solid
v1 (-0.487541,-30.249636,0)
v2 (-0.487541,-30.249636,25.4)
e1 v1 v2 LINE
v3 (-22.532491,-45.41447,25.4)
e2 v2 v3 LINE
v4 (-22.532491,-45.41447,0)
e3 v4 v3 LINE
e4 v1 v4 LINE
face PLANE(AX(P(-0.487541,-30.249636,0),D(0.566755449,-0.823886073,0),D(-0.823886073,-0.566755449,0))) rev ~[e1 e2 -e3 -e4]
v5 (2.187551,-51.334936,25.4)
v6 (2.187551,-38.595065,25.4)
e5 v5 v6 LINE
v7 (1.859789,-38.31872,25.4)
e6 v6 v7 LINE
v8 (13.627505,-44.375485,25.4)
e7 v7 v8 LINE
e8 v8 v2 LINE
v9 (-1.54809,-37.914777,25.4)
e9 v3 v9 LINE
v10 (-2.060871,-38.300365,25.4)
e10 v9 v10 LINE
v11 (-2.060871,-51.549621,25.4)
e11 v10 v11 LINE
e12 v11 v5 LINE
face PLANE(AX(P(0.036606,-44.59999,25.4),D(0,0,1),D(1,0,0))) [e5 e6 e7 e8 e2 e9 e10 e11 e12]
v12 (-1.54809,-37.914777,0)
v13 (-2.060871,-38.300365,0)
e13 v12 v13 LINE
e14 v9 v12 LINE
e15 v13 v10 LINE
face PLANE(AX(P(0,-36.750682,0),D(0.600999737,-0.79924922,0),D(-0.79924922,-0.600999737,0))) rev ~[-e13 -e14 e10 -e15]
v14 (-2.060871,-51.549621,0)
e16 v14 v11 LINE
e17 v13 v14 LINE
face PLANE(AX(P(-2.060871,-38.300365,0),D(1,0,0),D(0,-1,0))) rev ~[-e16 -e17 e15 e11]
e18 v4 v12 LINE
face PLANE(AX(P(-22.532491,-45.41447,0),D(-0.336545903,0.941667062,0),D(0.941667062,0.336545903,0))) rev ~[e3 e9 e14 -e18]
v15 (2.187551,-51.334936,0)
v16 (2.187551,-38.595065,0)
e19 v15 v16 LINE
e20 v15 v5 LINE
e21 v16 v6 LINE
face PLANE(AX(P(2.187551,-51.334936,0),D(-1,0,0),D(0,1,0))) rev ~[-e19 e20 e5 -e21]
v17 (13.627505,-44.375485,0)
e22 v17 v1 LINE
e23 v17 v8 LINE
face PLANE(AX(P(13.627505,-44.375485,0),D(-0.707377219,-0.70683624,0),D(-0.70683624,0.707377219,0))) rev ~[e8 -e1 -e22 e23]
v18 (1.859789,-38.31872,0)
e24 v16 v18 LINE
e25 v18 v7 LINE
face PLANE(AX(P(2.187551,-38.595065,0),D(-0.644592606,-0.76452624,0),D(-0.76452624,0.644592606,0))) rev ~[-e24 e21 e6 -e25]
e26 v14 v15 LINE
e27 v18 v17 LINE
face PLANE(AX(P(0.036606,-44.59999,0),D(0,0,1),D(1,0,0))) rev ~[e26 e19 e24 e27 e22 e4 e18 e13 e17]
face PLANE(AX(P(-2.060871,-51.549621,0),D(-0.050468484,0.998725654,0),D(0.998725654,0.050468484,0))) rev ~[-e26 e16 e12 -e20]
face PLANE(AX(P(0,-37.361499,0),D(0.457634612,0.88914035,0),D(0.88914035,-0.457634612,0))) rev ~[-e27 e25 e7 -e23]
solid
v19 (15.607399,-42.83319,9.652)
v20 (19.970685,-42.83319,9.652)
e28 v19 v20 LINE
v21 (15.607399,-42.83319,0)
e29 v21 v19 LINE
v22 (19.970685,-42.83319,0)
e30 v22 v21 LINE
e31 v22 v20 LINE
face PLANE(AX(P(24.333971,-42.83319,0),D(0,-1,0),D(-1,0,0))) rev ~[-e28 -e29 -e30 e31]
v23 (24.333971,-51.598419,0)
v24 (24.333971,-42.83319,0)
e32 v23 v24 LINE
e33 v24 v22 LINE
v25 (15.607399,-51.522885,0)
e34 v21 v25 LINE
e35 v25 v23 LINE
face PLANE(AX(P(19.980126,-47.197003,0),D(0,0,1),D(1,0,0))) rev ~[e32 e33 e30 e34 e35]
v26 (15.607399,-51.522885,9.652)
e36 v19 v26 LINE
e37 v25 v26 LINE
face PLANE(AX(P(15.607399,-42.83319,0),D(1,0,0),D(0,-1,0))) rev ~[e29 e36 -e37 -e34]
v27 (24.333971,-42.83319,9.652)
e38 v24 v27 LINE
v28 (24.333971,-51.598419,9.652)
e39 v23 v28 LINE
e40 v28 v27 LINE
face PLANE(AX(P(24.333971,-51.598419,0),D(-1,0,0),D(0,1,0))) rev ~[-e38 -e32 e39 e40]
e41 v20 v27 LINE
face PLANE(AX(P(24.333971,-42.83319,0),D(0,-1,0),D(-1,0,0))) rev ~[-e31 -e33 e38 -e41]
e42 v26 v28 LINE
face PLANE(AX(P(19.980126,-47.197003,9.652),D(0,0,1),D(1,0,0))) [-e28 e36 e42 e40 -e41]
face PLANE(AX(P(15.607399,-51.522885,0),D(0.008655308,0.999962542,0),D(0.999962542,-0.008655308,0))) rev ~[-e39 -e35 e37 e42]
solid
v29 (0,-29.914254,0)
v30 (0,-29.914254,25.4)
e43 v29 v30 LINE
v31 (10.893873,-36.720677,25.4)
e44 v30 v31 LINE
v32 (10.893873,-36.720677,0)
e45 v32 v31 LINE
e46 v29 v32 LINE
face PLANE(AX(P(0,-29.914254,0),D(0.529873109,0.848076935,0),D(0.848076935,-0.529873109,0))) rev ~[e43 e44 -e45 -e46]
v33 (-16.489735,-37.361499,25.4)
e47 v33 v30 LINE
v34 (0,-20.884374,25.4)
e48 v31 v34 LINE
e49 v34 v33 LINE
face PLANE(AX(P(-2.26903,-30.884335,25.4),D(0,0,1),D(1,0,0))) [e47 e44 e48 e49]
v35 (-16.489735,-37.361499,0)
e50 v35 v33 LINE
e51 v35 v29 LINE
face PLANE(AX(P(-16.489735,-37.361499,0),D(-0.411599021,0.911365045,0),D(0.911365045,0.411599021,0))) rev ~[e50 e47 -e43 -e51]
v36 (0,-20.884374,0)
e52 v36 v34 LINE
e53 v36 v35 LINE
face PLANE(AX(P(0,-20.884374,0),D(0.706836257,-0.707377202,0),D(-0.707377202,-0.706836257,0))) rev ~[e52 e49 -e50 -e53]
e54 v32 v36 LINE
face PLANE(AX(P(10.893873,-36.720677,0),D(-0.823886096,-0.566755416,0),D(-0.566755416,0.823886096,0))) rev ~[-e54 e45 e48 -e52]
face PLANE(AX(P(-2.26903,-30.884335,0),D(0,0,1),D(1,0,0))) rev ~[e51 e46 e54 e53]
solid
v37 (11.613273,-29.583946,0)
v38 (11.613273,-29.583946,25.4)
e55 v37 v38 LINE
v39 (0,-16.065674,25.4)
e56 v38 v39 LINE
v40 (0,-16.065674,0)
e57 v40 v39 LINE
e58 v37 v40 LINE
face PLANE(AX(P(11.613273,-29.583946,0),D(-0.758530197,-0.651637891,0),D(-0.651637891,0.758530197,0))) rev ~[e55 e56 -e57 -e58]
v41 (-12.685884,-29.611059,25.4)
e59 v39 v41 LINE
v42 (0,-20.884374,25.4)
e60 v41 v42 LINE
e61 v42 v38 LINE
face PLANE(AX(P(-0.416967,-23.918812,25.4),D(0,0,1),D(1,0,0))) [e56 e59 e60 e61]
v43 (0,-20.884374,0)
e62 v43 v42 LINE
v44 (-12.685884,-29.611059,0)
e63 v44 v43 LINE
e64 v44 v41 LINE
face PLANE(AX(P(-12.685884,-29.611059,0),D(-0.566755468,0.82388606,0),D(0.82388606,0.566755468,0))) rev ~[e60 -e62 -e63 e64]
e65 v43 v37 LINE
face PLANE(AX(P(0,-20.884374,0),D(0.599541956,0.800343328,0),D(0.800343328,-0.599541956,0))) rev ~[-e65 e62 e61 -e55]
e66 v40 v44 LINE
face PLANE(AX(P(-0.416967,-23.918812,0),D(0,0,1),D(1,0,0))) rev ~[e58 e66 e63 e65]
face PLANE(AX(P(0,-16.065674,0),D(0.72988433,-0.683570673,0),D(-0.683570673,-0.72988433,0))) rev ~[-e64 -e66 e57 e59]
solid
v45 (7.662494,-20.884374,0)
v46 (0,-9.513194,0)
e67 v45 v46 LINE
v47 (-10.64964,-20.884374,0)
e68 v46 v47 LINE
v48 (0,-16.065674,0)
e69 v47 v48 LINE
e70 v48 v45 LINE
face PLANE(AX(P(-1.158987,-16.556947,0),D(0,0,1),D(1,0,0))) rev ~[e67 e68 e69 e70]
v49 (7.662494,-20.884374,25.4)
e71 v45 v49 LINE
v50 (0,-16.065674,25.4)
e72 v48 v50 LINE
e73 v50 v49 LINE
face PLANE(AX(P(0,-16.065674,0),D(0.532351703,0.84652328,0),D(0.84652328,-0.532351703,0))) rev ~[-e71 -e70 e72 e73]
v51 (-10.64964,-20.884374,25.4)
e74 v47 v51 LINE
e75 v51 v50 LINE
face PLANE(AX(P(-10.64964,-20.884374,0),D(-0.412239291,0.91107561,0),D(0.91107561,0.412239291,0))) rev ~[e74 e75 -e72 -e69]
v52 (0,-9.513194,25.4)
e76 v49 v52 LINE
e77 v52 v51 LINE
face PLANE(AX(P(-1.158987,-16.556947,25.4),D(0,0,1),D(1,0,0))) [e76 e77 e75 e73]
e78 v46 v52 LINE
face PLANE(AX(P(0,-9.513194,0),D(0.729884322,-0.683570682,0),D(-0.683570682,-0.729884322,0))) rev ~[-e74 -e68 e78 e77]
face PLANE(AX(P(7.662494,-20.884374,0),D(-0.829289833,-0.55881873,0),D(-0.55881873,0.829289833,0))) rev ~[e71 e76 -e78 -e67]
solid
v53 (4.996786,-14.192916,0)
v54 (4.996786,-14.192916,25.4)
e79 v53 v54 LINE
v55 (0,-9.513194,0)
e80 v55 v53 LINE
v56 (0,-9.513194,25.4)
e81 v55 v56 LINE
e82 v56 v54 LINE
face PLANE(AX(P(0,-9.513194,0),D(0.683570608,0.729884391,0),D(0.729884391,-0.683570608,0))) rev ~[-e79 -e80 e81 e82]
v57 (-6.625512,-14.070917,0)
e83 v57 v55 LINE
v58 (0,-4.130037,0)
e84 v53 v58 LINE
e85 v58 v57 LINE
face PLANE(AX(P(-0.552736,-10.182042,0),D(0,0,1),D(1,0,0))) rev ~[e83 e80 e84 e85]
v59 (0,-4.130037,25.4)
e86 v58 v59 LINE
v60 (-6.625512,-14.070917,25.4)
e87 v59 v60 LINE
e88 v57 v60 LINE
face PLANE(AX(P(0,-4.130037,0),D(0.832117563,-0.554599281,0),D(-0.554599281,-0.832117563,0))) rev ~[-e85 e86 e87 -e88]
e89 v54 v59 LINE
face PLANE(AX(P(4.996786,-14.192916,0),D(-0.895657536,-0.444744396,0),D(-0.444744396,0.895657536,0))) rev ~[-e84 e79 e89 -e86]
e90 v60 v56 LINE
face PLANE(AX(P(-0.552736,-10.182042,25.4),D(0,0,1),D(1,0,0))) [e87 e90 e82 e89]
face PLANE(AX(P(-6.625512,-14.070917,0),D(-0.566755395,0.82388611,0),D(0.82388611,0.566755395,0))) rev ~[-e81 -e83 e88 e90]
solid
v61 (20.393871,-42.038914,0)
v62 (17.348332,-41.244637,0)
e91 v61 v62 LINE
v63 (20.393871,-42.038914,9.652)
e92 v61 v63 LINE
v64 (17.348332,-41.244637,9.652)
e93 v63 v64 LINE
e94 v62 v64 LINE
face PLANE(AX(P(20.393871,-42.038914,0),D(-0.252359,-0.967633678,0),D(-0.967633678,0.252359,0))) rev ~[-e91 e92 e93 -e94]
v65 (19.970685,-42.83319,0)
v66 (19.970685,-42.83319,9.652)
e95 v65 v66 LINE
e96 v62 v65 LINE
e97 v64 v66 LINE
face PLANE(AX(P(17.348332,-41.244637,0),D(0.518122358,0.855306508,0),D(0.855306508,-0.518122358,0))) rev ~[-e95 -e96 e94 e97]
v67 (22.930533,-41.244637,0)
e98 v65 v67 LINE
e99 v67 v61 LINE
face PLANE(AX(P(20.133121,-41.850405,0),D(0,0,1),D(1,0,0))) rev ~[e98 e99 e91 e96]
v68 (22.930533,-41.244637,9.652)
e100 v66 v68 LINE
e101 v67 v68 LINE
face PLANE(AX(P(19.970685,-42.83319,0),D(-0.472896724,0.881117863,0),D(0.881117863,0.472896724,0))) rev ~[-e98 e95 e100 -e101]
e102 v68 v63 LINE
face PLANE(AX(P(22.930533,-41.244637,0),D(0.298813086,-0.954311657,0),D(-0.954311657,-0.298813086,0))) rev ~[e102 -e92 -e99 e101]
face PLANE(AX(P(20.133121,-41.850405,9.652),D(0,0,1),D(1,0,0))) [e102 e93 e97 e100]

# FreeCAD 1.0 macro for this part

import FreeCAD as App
import Part
import Sketcher
from FreeCAD import Vector
Q = App.Units.Quantity

doc = App.newDocument("Part")
body = doc.addObject("PartDesign::Body", "Body")
body.AllowCompound = True

sketch1 = body.newObject("Sketcher::SketchObject", "Sketch")
sketch1.AttachmentSupport = (doc.getObject("XY_Plane"), [""])
sketch1.MapMode = "FlatFace"
sketch1.addGeometry(Part.LineSegment(Vector(0, -16.065674, 0), Vector(-12.685884, -29.611059, 0)), False)
sketch1.addGeometry(Part.LineSegment(Vector(-12.685884, -29.611059, 0), Vector(0, -20.884374, 0)), False)
sketch1.addGeometry(Part.LineSegment(Vector(0, -20.884374, 0), Vector(11.613273, -29.583946, 0)), False)
sketch1.addGeometry(Part.LineSegment(Vector(11.613273, -29.583946, 0), Vector(0, -16.065674, 0)), False)
sketch1.addGeometry(Part.LineSegment(Vector(-6.625512, -14.070917, 0), Vector(0, -9.513194, 0)), False)
sketch1.addGeometry(Part.LineSegment(Vector(0, -9.513194, 0), Vector(4.996786, -14.192916, 0)), False)
sketch1.addGeometry(Part.LineSegment(Vector(4.996786, -14.192916, 0), Vector(0, -4.130037, 0)), False)
sketch1.addGeometry(Part.LineSegment(Vector(0, -4.130037, 0), Vector(-6.625512, -14.070917, 0)), False)
sketch1.addGeometry(Part.LineSegment(Vector(-10.64964, -20.884374, 0), Vector(0, -16.065674, 0)), False)
sketch1.addGeometry(Part.LineSegment(Vector(0, -16.065674, 0), Vector(7.662494, -20.884374, 0)), False)
sketch1.addGeometry(Part.LineSegment(Vector(7.662494, -20.884374, 0), Vector(0, -9.513194, 0)), False)
sketch1.addGeometry(Part.LineSegment(Vector(0, -9.513194, 0), Vector(-10.64964, -20.884374, 0)), False)
sketch1.addGeometry(Part.LineSegment(Vector(13.627505, -44.375485, 0), Vector(-0.487541, -30.249636, 0)), False)
sketch1.addGeometry(Part.LineSegment(Vector(-0.487541, -30.249636, 0), Vector(-22.532491, -45.41447, 0)), False)
sketch1.addGeometry(Part.LineSegment(Vector(-22.532491, -45.41447, 0), Vector(0, -37.361499, 0)), False)
sketch1.addGeometry(Part.LineSegment(Vector(0, -37.361499, 0), Vector(13.627505, -44.375485, 0)), False)
sketch1.addGeometry(Part.LineSegment(Vector(10.893873, -36.720677, 0), Vector(0, -20.884374, 0)), False)
sketch1.addGeometry(Part.LineSegment(Vector(0, -20.884374, 0), Vector(-16.489735, -37.361499, 0)), False)
sketch1.addGeometry(Part.LineSegment(Vector(-16.489735, -37.361499, 0), Vector(0, -29.914254, 0)), False)
sketch1.addGeometry(Part.LineSegment(Vector(0, -29.914254, 0), Vector(10.893873, -36.720677, 0)), False)
sketch1.addConstraint(Sketcher.Constraint("Coincident", 0, 2, 1, 1))
sketch1.addConstraint(Sketcher.Constraint("Coincident", 1, 2, 2, 1))
sketch1.addConstraint(Sketcher.Constraint("Coincident", 2, 2, 3, 1))
sketch1.addConstraint(Sketcher.Constraint("Coincident", 3, 2, 0, 1))
sketch1.addConstraint(Sketcher.Constraint("Coincident", 4, 2, 5, 1))
sketch1.addConstraint(Sketcher.Constraint("Coincident", 5, 2, 6, 1))
sketch1.addConstraint(Sketcher.Constraint("Coincident", 6, 2, 7, 1))
sketch1.addConstraint(Sketcher.Constraint("Coincident", 7, 2, 4, 1))
sketch1.addConstraint(Sketcher.Constraint("Coincident", 8, 2, 9, 1))
sketch1.addConstraint(Sketcher.Constraint("Coincident", 9, 2, 10, 1))
sketch1.addConstraint(Sketcher.Constraint("Coincident", 10, 2, 11, 1))
sketch1.addConstraint(Sketcher.Constraint("Coincident", 11, 2, 8, 1))
sketch1.addConstraint(Sketcher.Constraint("Coincident", 12, 2, 13, 1))
sketch1.addConstraint(Sketcher.Constraint("Coincident", 13, 2, 14, 1))
sketch1.addConstraint(Sketcher.Constraint("Coincident", 14, 2, 15, 1))
sketch1.addConstraint(Sketcher.Constraint("Coincident", 15, 2, 12, 1))
sketch1.addConstraint(Sketcher.Constraint("Coincident", 16, 2, 17, 1))
sketch1.addConstraint(Sketcher.Constraint("Coincident", 17, 2, 18, 1))
sketch1.addConstraint(Sketcher.Constraint("Coincident", 18, 2, 19, 1))
sketch1.addConstraint(Sketcher.Constraint("Coincident", 19, 2, 16, 1))
sketch1.addConstraint(Sketcher.Constraint("Coincident", 8, 2, 3, 2))
sketch1.addConstraint(Sketcher.Constraint("Coincident", 10, 2, 4, 2))
sketch1.addConstraint(Sketcher.Constraint("Coincident", 16, 2, 1, 2))
sketch1.addConstraint(Sketcher.Constraint("PointOnObject", 1, 2, -2))
sketch1.addConstraint(Sketcher.Constraint("PointOnObject", 3, 2, -2))
sketch1.addConstraint(Sketcher.Constraint("PointOnObject", 4, 2, -2))
sketch1.addConstraint(Sketcher.Constraint("PointOnObject", 6, 2, -2))
sketch1.addConstraint(Sketcher.Constraint("PointOnObject", 14, 2, -2))
sketch1.addConstraint(Sketcher.Constraint("PointOnObject", 18, 2, -2))
sketch1.addConstraint(Sketcher.Constraint("Parallel", 1, 4))
sketch1.addConstraint(Sketcher.Constraint("Perpendicular", 0, 5))
sketch1.addConstraint(Sketcher.Constraint("Perpendicular", 5, 11))
sketch1.addConstraint(Sketcher.Constraint("Parallel", 4, 13))
sketch1.addConstraint(Sketcher.Constraint("Perpendicular", 13, 16))
sketch1.addConstraint(Sketcher.Constraint("Perpendicular", 12, 17))
sketch1.addConstraint(Sketcher.Constraint("Horizontal", 1, 2, 9, 2))
sketch1.addConstraint(Sketcher.Constraint("Horizontal", 9, 2, 11, 2))
sketch1.addConstraint(Sketcher.Constraint("Horizontal", 14, 2, 17, 2))
sketch1.addConstraint(Sketcher.Constraint("Distance", 8, Q("0.4602002 in")))
sketch1.addConstraint(Sketcher.Constraint("DistanceY", 6, 2, -1, 1, Q("0.1625999 in")))
sketch1.addConstraint(Sketcher.Constraint("Distance", 14, Q("23.928299 mm")))
sketch1.addConstraint(Sketcher.Constraint("DistanceY", 14, 2, -1, 1, Q("37.361499 mm")))
sketch1.addConstraint(Sketcher.Constraint("DistanceY", 1, 2, 3, 2, Q("4.8187 mm")))
sketch1.addConstraint(Sketcher.Constraint("DistanceX", 7, 2, 5, 2, Q("11.622298 mm")))
sketch1.addConstraint(Sketcher.Constraint("DistanceY", 5, 2, 7, 2, Q("0.121999 mm")))
sketch1.addConstraint(Sketcher.Constraint("DistanceX", 11, 2, 12, 2, Q("10.162099 mm")))
sketch1.addConstraint(Sketcher.Constraint("DistanceX", 19, 2, 2, 2, Q("0.7194 mm")))
sketch1.addConstraint(Sketcher.Constraint("Distance", 1, Q("15.397619 mm")))
sketch1.addConstraint(Sketcher.Constraint("Distance", 4, Q("8.041781 mm")))
sketch1.addConstraint(Sketcher.Constraint("Distance", 10, Q("13.711949 mm")))
sketch1.addConstraint(Sketcher.Constraint("Distance", 12, Q("19.96933 mm")))
sketch1.addConstraint(Sketcher.Constraint("Distance", 13, Q("26.75728 mm")))
sketch1.addConstraint(Sketcher.Constraint("Distance", 16, Q("19.221471 mm")))
sketch1.addConstraint(Sketcher.Constraint("Distance", 17, Q("23.311092 mm")))
sketch1.addConstraint(Sketcher.Constraint("DistanceY", 0, 2, -1, 1, Q("29.611059 mm")))
sketch1.addConstraint(Sketcher.Constraint("DistanceY", 2, 2, 4, 2, Q("20.070752 mm")))
sketch1.addConstraint(Sketcher.Constraint("DistanceY", 12, 2, 18, 2, Q("0.335382 mm")))
pad1 = body.newObject("PartDesign::Pad", "Pad")
pad1.Profile = sketch1
pad1.Length = Q("1 in")

sketch2 = body.newObject("Sketcher::SketchObject", "Sketch001")
sketch2.AttachmentSupport = (doc.getObject("XY_Plane"), [""])
sketch2.MapMode = "FlatFace"
sketch2.addGeometry(Part.LineSegment(Vector(2.187551, -51.334936, 0), Vector(2.187551, -38.595065, 0)), False)
sketch2.addGeometry(Part.LineSegment(Vector(2.187551, -38.595065, 0), Vector(0, -36.750682, 0)), False)
sketch2.addGeometry(Part.LineSegment(Vector(0, -36.750682, 0), Vector(-2.060871, -38.300365, 0)), False)
sketch2.addGeometry(Part.LineSegment(Vector(-2.060871, -38.300365, 0), Vector(-2.060871, -51.549621, 0)), False)
sketch2.addGeometry(Part.LineSegment(Vector(-2.060871, -51.549621, 0), Vector(2.187551, -51.334936, 0)), False)
sketch2.addConstraint(Sketcher.Constraint("Coincident", 0, 2, 1, 1))
sketch2.addConstraint(Sketcher.Constraint("Coincident", 1, 2, 2, 1))
sketch2.addConstraint(Sketcher.Constraint("Coincident", 2, 2, 3, 1))
sketch2.addConstraint(Sketcher.Constraint("Coincident", 3, 2, 4, 1))
sketch2.addConstraint(Sketcher.Constraint("Coincident", 4, 2, 0, 1))
sketch2.addConstraint(Sketcher.Constraint("Vertical", 0))
sketch2.addConstraint(Sketcher.Constraint("Vertical", 3))
sketch2.addConstraint(Sketcher.Constraint("PointOnObject", 1, 2, -2))
sketch2.addConstraint(Sketcher.Constraint("DistanceY", 0, 1, 0, 2, Q("12.739871 mm")))
sketch2.addConstraint(Sketcher.Constraint("DistanceY", 0, 2, 2, 2, Q("0.2947 mm")))
sketch2.addConstraint(Sketcher.Constraint("Distance", 2, Q("2.578509 mm")))
sketch2.addConstraint(Sketcher.Constraint("DistanceY", 3, 2, 3, 1, Q("13.249256 mm")))
sketch2.addConstraint(Sketcher.Constraint("DistanceX", -1, 1, 0, 2, Q("2.187551 mm")))
sketch2.addConstraint(Sketcher.Constraint("DistanceY", 1, 2, -1, 1, Q("36.750682 mm")))
sketch2.addConstraint(Sketcher.Constraint("DistanceX", 2, 2, -1, 1, Q("2.060871 mm")))
pad2 = body.newObject("PartDesign::Pad", "Pad001")
pad2.Profile = sketch2
pad2.Length = Q("1 in")
body2 = doc.addObject("PartDesign::Body", "Body001")
body2.AllowCompound = True

sketch3 = body2.newObject("Sketcher::SketchObject", "Sketch002")
sketch3.AttachmentSupport = (doc.getObject("XY_Plane001"), [""])
sketch3.MapMode = "FlatFace"
sketch3.addGeometry(Part.LineSegment(Vector(17.348332, -41.244637, 0), Vector(19.970685, -42.83319, 0)), False)
sketch3.addGeometry(Part.LineSegment(Vector(19.970685, -42.83319, 0), Vector(22.930533, -41.244637, 0)), False)
sketch3.addGeometry(Part.LineSegment(Vector(22.930533, -41.244637, 0), Vector(20.393871, -42.038914, 0)), False)
sketch3.addGeometry(Part.LineSegment(Vector(20.393871, -42.038914, 0), Vector(17.348332, -41.244637, 0)), False)
sketch3.addGeometry(Part.LineSegment(Vector(15.607399, -42.83319, 0), Vector(15.607399, -51.522885, 0)), False)
sketch3.addGeometry(Part.LineSegment(Vector(15.607399, -51.522885, 0), Vector(24.333971, -51.598419, 0)), False)
sketch3.addGeometry(Part.LineSegment(Vector(24.333971, -51.598419, 0), Vector(24.333971, -42.83319, 0)), False)
sketch3.addGeometry(Part.LineSegment(Vector(24.333971, -42.83319, 0), Vector(19.970685, -42.83319, 0)), False)
sketch3.addGeometry(Part.LineSegment(Vector(19.970685, -42.83319, 0), Vector(15.607399, -42.83319, 0)), False)
sketch3.addConstraint(Sketcher.Constraint("Coincident", 0, 2, 1, 1))
sketch3.addConstraint(Sketcher.Constraint("Coincident", 1, 2, 2, 1))
sketch3.addConstraint(Sketcher.Constraint("Coincident", 2, 2, 3, 1))
sketch3.addConstraint(Sketcher.Constraint("Coincident", 3, 2, 0, 1))
sketch3.addConstraint(Sketcher.Constraint("Coincident", 4, 2, 5, 1))
sketch3.addConstraint(Sketcher.Constraint("Coincident", 5, 2, 6, 1))
sketch3.addConstraint(Sketcher.Constraint("Coincident", 6, 2, 7, 1))
sketch3.addConstraint(Sketcher.Constraint("Coincident", 7, 2, 8, 1))
sketch3.addConstraint(Sketcher.Constraint("Coincident", 8, 2, 4, 1))
sketch3.addConstraint(Sketcher.Constraint("Vertical", 4))
sketch3.addConstraint(Sketcher.Constraint("Vertical", 6))
sketch3.addConstraint(Sketcher.Constraint("Horizontal", 7))
sketch3.addConstraint(Sketcher.Constraint("Horizontal", 8))
sketch3.addConstraint(Sketcher.Constraint("Coincident", 7, 2, 0, 2))
sketch3.addConstraint(Sketcher.Constraint("Horizontal", 1, 2, 3, 2))
sketch3.addConstraint(Sketcher.Constraint("Equal", 7, 8))
sketch3.addConstraint(Sketcher.Constraint("Distance", 5, Q("8.726899 mm")))
sketch3.addConstraint(Sketcher.Constraint("DistanceY", 6, 1, 6, 2, Q("8.765229 mm")))
sketch3.addConstraint(Sketcher.Constraint("DistanceX", -1, 1, 4, 2, Q("15.607399 mm")))
sketch3.addConstraint(Sketcher.Constraint("DistanceX", 3, 2, 1, 2, Q("5.582201 mm")))
sketch3.addConstraint(Sketcher.Constraint("DistanceX", 2, 2, 5, 2, Q("3.9401 mm")))
sketch3.addConstraint(Sketcher.Constraint("Distance", 0, Q("3.06598 mm")))
sketch3.addConstraint(Sketcher.Constraint("Distance", 3, Q("3.147409 mm")))
sketch3.addConstraint(Sketcher.Constraint("DistanceX", 7, 2, 7, 1, Q("4.363286 mm")))
sketch3.addConstraint(Sketcher.Constraint("DistanceY", 0, 2, -1, 1, Q("42.83319 mm")))
sketch3.addConstraint(Sketcher.Constraint("DistanceX", -1, 1, 3, 2, Q("17.348332 mm")))
pad3 = body2.newObject("PartDesign::Pad", "Pad002")
pad3.Profile = sketch3
pad3.Length = Q("0.38 in")

doc.recompute()
